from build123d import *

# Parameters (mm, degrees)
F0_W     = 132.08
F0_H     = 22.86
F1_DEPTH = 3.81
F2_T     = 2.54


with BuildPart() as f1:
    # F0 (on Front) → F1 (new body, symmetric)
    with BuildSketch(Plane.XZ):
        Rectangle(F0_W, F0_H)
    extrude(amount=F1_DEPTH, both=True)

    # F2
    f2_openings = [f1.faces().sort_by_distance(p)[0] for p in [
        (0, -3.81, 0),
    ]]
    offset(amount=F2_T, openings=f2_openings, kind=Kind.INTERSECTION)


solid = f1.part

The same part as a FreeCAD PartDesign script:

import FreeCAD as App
import Part
import Sketcher
from FreeCAD import Vector
Q = App.Units.Quantity


def faces_at(feature, points):
    """Names of the faces that lie closest to the given points."""
    faces = feature.Shape.Faces
    near = lambda p: min(range(len(faces)), key=lambda i: faces[i].distToShape(Part.Vertex(*p))[0])
    return sorted({f"Face{near(p) + 1}" for p in points})

doc = App.newDocument("Part")
body = doc.addObject("PartDesign::Body", "Body")

# Sketch on XZ plane
sketch1 = body.newObject("Sketcher::SketchObject", "Sketch")
sketch1.AttachmentSupport = (doc.getObject("XZ_Plane"), [""])
sketch1.MapMode = "FlatFace"
sketch1.addGeometry(Part.LineSegment(Vector(-66.04, 11.43, 0), Vector(-66.04, -11.43, 0)), False)
sketch1.addGeometry(Part.LineSegment(Vector(-66.04, -11.43, 0), Vector(66.04, -11.43, 0)), False)
sketch1.addGeometry(Part.LineSegment(Vector(66.04, -11.43, 0), Vector(66.04, 11.43, 0)), False)
sketch1.addGeometry(Part.LineSegment(Vector(66.04, 11.43, 0), Vector(-66.04, 11.43, 0)), False)
sketch1.addConstraint(Sketcher.Constraint("Coincident", 0, 2, 1, 1))
sketch1.addConstraint(Sketcher.Constraint("Coincident", 1, 2, 2, 1))
sketch1.addConstraint(Sketcher.Constraint("Coincident", 2, 2, 3, 1))
sketch1.addConstraint(Sketcher.Constraint("Coincident", 3, 2, 0, 1))
sketch1.addConstraint(Sketcher.Constraint("Vertical", 0))
sketch1.addConstraint(Sketcher.Constraint("Horizontal", 1))
sketch1.addConstraint(Sketcher.Constraint("Vertical", 2))
sketch1.addConstraint(Sketcher.Constraint("Horizontal", 3))
sketch1.addConstraint(Sketcher.Constraint("Symmetric", 0, 2, 2, 2, -1, 1))
sketch1.addConstraint(Sketcher.Constraint("DistanceX", 1, 1, 1, 2, Q("5.2 in")))
sketch1.addConstraint(Sketcher.Constraint("DistanceY", 0, 2, 0, 1, Q("0.9 in")))
pad1 = body.newObject("PartDesign::Pad", "Pad")
pad1.Profile = sketch1
pad1.Length = Q("0.3 in")
pad1.Midplane = True
doc.recompute()

thickness = body.newObject("PartDesign::Thickness", "Thickness")
thickness.Base = (pad1, faces_at(pad1, [(0, -3.81, 0)]))
thickness.Value = Q("0.1 in")
thickness.Reversed = False
thickness.Join = "Intersection"

doc.recompute()
